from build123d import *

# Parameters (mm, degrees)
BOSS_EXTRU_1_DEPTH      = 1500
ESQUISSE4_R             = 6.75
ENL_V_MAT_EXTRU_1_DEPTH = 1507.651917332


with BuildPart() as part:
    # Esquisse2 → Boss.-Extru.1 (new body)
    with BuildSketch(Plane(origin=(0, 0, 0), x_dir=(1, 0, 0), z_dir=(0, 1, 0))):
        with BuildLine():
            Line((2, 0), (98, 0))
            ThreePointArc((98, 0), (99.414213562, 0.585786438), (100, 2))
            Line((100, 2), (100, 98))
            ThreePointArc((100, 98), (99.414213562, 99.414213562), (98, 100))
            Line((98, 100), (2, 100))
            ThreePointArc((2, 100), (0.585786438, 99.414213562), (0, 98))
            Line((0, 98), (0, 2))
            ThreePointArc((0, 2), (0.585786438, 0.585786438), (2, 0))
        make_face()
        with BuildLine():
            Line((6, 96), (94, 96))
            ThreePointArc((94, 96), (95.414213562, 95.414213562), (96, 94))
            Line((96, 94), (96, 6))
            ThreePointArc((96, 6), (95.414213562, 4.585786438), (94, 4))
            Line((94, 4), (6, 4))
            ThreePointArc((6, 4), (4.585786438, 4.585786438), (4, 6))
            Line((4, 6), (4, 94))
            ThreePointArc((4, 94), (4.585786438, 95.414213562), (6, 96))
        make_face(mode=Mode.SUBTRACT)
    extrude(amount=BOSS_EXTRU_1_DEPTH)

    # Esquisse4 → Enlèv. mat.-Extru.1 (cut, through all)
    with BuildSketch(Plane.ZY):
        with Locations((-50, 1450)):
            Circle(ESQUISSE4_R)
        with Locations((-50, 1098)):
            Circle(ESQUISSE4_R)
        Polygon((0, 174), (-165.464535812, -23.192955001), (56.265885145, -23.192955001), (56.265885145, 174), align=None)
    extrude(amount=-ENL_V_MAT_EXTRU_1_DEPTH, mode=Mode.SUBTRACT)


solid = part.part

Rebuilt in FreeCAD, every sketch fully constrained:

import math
import FreeCAD as App
import Part
import Sketcher
Q = App.Units.Quantity


def add_polygon(sketch, points):
    """Adds a closed chain of lines whose ends are joined by coincident constraints."""
    first, n = sketch.GeometryCount, len(points)
    for a, b in zip(points, points[1:] + points[:1]):
        sketch.addGeometry(Part.LineSegment(App.Vector(*a, 0), App.Vector(*b, 0)), False)
    for i in range(n):
        sketch.addConstraint(Sketcher.Constraint("Coincident", first + i, 2, first + (i + 1) % n, 1))

doc = App.newDocument("Part")
params = doc.addObject("Spreadsheet::Sheet", "Params")
for row, (alias, value) in enumerate([
    ("sketch1_radius", "2 mm"),
    ("sketch1_width", "96 mm"),
    ("sketch1_width2", "88 mm"),
    ("pad1_length", "1500 mm"),
    ("sketch2_diameter", "13.5 mm"),
], start=1):
    params.set(f"A{row}", alias)
    params.set(f"B{row}", "=" + value)
    params.setAlias(f"B{row}", alias)

body = doc.addObject("PartDesign::Body", "Body")

sketch1 = body.newObject("Sketcher::SketchObject", "Sketch")
sketch1.AttachmentSupport = (doc.getObject("XZ_Plane"), [""])
sketch1.MapMode = "FlatFace"
sketch1.addGeometry([
    Part.LineSegment(App.Vector(2, 0, 0), App.Vector(98, 0, 0)),
    Part.ArcOfCircle(Part.Circle(App.Vector(98, -2, 0), App.Vector(0, 0, 1), 2), math.radians(0), math.radians(90)),
    Part.LineSegment(App.Vector(100, -2, 0), App.Vector(100, -98, 0)),
    Part.ArcOfCircle(Part.Circle(App.Vector(98, -98, 0), App.Vector(0, 0, 1), 2), math.radians(-90), math.radians(0)),
    Part.LineSegment(App.Vector(98, -100, 0), App.Vector(2, -100, 0)),
    Part.ArcOfCircle(Part.Circle(App.Vector(2, -98, 0), App.Vector(0, 0, 1), 2), math.radians(-180), math.radians(-90)),
    Part.LineSegment(App.Vector(0, -98, 0), App.Vector(0, -2, 0)),
    Part.ArcOfCircle(Part.Circle(App.Vector(2, -2, 0), App.Vector(0, 0, 1), 2), math.radians(90), math.radians(180)),
    Part.ArcOfCircle(Part.Circle(App.Vector(6, -94, 0), App.Vector(0, 0, 1), 2), math.radians(-180), math.radians(-90)),
    Part.LineSegment(App.Vector(6, -96, 0), App.Vector(94, -96, 0)),
    Part.ArcOfCircle(Part.Circle(App.Vector(94, -94, 0), App.Vector(0, 0, 1), 2), math.radians(-90), math.radians(0)),
    Part.LineSegment(App.Vector(96, -94, 0), App.Vector(96, -6, 0)),
    Part.ArcOfCircle(Part.Circle(App.Vector(94, -6, 0), App.Vector(0, 0, 1), 2), math.radians(0), math.radians(90)),
    Part.LineSegment(App.Vector(94, -4, 0), App.Vector(6, -4, 0)),
    Part.ArcOfCircle(Part.Circle(App.Vector(6, -6, 0), App.Vector(0, 0, 1), 2), math.radians(90), math.radians(180)),
    Part.LineSegment(App.Vector(4, -6, 0), App.Vector(4, -94, 0)),
], False)
sketch1.addConstraint([
    Sketcher.Constraint("Tangent", 0, 2, 1, 2),
    Sketcher.Constraint("Tangent", 1, 1, 2, 1),
    Sketcher.Constraint("Tangent", 2, 2, 3, 2),
    Sketcher.Constraint("Tangent", 3, 1, 4, 1),
    Sketcher.Constraint("Tangent", 4, 2, 5, 2),
    Sketcher.Constraint("Tangent", 5, 1, 6, 1),
    Sketcher.Constraint("Tangent", 6, 2, 7, 2),
    Sketcher.Constraint("Tangent", 7, 1, 0, 1),
    Sketcher.Constraint("Tangent", 8, 2, 9, 1),
    Sketcher.Constraint("Tangent", 9, 2, 10, 1),
    Sketcher.Constraint("Tangent", 10, 2, 11, 1),
    Sketcher.Constraint("Tangent", 11, 2, 12, 1),
    Sketcher.Constraint("Tangent", 12, 2, 13, 1),
    Sketcher.Constraint("Tangent", 13, 2, 14, 1),
    Sketcher.Constraint("Tangent", 14, 2, 15, 1),
    Sketcher.Constraint("Tangent", 15, 2, 8, 1),
    Sketcher.Constraint("Horizontal", 0),
    Sketcher.Constraint("Vertical", 2),
    Sketcher.Constraint("Horizontal", 4),
    Sketcher.Constraint("Vertical", 6),
    Sketcher.Constraint("Horizontal", 9),
    Sketcher.Constraint("Vertical", 11),
    Sketcher.Constraint("Horizontal", 13),
    Sketcher.Constraint("Vertical", 15),
    Sketcher.Constraint("Equal", 1, 3),
    Sketcher.Constraint("Equal", 3, 5),
    Sketcher.Constraint("Equal", 5, 7),
    Sketcher.Constraint("Equal", 7, 8),
    Sketcher.Constraint("Equal", 8, 10),
    Sketcher.Constraint("Equal", 10, 12),
    Sketcher.Constraint("Equal", 12, 14),
    Sketcher.Constraint("PointOnObject", 0, 2, -1),
    Sketcher.Constraint("PointOnObject", 5, 1, -2),
    Sketcher.Constraint("Equal", 4, 2),
    Sketcher.Constraint("Equal", 13, 11),
    Sketcher.Constraint("Radius", 1, Q("2 mm")),
    Sketcher.Constraint("DistanceX", 0, 1, 0, 2, Q("96 mm")),
    Sketcher.Constraint("DistanceX", 9, 1, 9, 2, Q("88 mm")),
    Sketcher.Constraint("DistanceX", -1, 1, 8, 3, Q("6 mm")),
    Sketcher.Constraint("DistanceY", 8, 3, -1, 1, Q("94 mm")),
])
sketch1.setExpression("Constraints[35]", "Params.sketch1_radius")
sketch1.setExpression("Constraints[36]", "Params.sketch1_width")
sketch1.setExpression("Constraints[37]", "Params.sketch1_width2")
pad1 = body.newObject("PartDesign::Pad", "Pad")
pad1.Profile = sketch1
pad1.setExpression("Length", "Params.pad1_length")
pad1.Reversed = True

sketch2 = body.newObject("Sketcher::SketchObject", "Sketch001")
sketch2.AttachmentSupport = (doc.getObject("YZ_Plane"), [""])
sketch2.MapMode = "FlatFace"
sketch2.addGeometry(Part.Circle(App.Vector(1450, -50, 0), App.Vector(0, 0, 1), 7), False)
sketch2.addGeometry(Part.Circle(App.Vector(1098, -50, 0), App.Vector(0, 0, 1), 7), False)
add_polygon(sketch2, [(174, 0), (-23, -165), (-23, 56), (174, 56)])
sketch2.addConstraint([
    Sketcher.Constraint("Vertical", 3),
    Sketcher.Constraint("Horizontal", 4),
    Sketcher.Constraint("Vertical", 5),
    Sketcher.Constraint("Equal", 0, 1),
    Sketcher.Constraint("PointOnObject", 5, 2, -1),
    Sketcher.Constraint("Horizontal", 0, 3, 1, 3),
    Sketcher.Constraint("Diameter", 0, Q("13.5 mm")),
    Sketcher.Constraint("Angle", 2, Q("-140 deg")),
    Sketcher.Constraint("DistanceX", -1, 1, 0, 3, Q("1450 mm")),
    Sketcher.Constraint("DistanceY", 0, 3, -1, 1, Q("50 mm")),
    Sketcher.Constraint("DistanceX", -1, 1, 1, 3, Q("1098 mm")),
    Sketcher.Constraint("DistanceX", -1, 1, 4, 2, Q("174 mm")),
    Sketcher.Constraint("DistanceY", 3, 1, 3, 2, Q("221.730421 mm")),
    Sketcher.Constraint("Distance", 2, Q("257.417121 mm")),
])
sketch2.setExpression("Constraints[10]", "Params.sketch2_diameter")
pocket1 = body.newObject("PartDesign::Pocket", "Pocket")
pocket1.Profile = sketch2
pocket1.Type = "ThroughAll"
pocket1.Reversed = True

doc.recompute()
